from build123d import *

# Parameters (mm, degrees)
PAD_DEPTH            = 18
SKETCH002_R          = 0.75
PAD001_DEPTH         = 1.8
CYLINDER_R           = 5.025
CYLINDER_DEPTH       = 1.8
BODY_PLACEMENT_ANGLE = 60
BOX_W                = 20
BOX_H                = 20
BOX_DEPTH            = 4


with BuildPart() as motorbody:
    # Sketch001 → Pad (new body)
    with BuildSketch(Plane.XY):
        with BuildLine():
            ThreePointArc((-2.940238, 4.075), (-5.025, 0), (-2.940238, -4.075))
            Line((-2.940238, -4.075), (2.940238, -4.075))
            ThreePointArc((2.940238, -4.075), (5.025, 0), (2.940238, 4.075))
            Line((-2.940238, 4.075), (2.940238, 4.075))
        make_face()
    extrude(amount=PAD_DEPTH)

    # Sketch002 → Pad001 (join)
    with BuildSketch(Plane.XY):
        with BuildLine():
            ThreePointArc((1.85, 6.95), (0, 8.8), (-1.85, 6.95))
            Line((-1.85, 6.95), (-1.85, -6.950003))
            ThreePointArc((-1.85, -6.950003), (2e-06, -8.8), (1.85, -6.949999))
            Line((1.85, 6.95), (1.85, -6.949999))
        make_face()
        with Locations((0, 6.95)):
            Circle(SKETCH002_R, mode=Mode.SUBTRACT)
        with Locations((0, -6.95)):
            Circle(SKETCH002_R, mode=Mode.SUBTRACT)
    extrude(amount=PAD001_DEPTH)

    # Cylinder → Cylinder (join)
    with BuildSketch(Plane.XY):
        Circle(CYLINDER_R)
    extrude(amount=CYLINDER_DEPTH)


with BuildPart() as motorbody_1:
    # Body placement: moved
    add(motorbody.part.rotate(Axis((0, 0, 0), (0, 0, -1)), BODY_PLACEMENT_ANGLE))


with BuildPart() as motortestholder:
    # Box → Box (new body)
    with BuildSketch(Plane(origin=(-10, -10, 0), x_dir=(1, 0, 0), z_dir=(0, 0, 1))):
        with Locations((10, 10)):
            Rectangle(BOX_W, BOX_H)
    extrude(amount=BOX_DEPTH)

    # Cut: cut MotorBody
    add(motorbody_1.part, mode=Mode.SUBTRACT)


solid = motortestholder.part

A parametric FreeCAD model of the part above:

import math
import FreeCAD as App
import Part
import Sketcher
from FreeCAD import Vector
Q = App.Units.Quantity


def add_polygon(sketch, points):
    """Adds a closed chain of lines whose ends are joined by coincident constraints."""
    first, n = sketch.GeometryCount, len(points)
    for a, b in zip(points, points[1:] + points[:1]):
        sketch.addGeometry(Part.LineSegment(App.Vector(*a, 0), App.Vector(*b, 0)), False)
    for i in range(n):
        sketch.addConstraint(Sketcher.Constraint("Coincident", first + i, 2, first + (i + 1) % n, 1))

doc = App.newDocument("Part")
body = doc.addObject("PartDesign::Body", "Body")

# Sketch on XY plane
sketch1 = body.newObject("Sketcher::SketchObject", "Sketch")
sketch1.AttachmentSupport = (doc.getObject("XY_Plane"), [""])
sketch1.MapMode = "FlatFace"
sketch1.addGeometry(Part.ArcOfCircle(Part.Circle(Vector(0, 0, 0), Vector(0, 0, 1), 5.025), math.radians(125.811608), math.radians(234.188392)), False)
sketch1.addGeometry(Part.LineSegment(Vector(-2.940238, -4.075, 0), Vector(2.940238, -4.075, 0)), False)
sketch1.addGeometry(Part.ArcOfCircle(Part.Circle(Vector(0, 0, 0), Vector(0, 0, 1), 5.025), math.radians(-54.188392), math.radians(54.188392)), False)
sketch1.addGeometry(Part.LineSegment(Vector(2.940238, 4.075, 0), Vector(-2.940238, 4.075, 0)), False)
sketch1.addConstraint(Sketcher.Constraint("Coincident", 0, 2, 1, 1))
sketch1.addConstraint(Sketcher.Constraint("Coincident", 1, 2, 2, 1))
sketch1.addConstraint(Sketcher.Constraint("Coincident", 2, 2, 3, 1))
sketch1.addConstraint(Sketcher.Constraint("Coincident", 3, 2, 0, 1))
sketch1.addConstraint(Sketcher.Constraint("Horizontal", 1))
sketch1.addConstraint(Sketcher.Constraint("Horizontal", 3))
sketch1.addConstraint(Sketcher.Constraint("Coincident", 0, 3, -1, 1))
sketch1.addConstraint(Sketcher.Constraint("Coincident", 2, 3, -1, 1))
sketch1.addConstraint(Sketcher.Constraint("Equal", 0, 2))
sketch1.addConstraint(Sketcher.Constraint("Vertical", 1, 2, 2, 2))
sketch1.addConstraint(Sketcher.Constraint("Radius", 0, Q("5.025 mm")))
sketch1.addConstraint(Sketcher.Constraint("DistanceY", 1, 2, 2, 2, Q("8.15 mm")))
pad1 = body.newObject("PartDesign::Pad", "Pad")
pad1.Profile = sketch1
pad1.Length = 18

# Sketch on XY plane
sketch2 = body.newObject("Sketcher::SketchObject", "Sketch001")
sketch2.AttachmentSupport = (doc.getObject("XY_Plane"), [""])
sketch2.MapMode = "FlatFace"
sketch2.addGeometry(Part.ArcOfCircle(Part.Circle(Vector(0, 6.95, 0), Vector(0, 0, 1), 1.85), math.radians(0), math.radians(180)), False)
sketch2.addGeometry(Part.LineSegment(Vector(-1.85, 6.95, 0), Vector(-1.85, -6.950003, 0)), False)
sketch2.addGeometry(Part.ArcOfCircle(Part.Circle(Vector(0, -6.95, 0), Vector(0, 0, 1), 1.85), math.radians(-179.999907), math.radians(0.000031)), False)
sketch2.addGeometry(Part.LineSegment(Vector(1.85, -6.949999, 0), Vector(1.85, 6.95, 0)), False)
sketch2.addGeometry(Part.Circle(Vector(0, -6.95, 0), Vector(0, 0, 1), 0.75), False)
sketch2.addGeometry(Part.Circle(Vector(0, 6.95, 0), Vector(0, 0, 1), 0.75), False)
sketch2.addConstraint(Sketcher.Constraint("Tangent", 0, 2, 1, 1))
sketch2.addConstraint(Sketcher.Constraint("Tangent", 1, 2, 2, 1))
sketch2.addConstraint(Sketcher.Constraint("Tangent", 2, 2, 3, 1))
sketch2.addConstraint(Sketcher.Constraint("Tangent", 3, 2, 0, 1))
sketch2.addConstraint(Sketcher.Constraint("Vertical", 1))
sketch2.addConstraint(Sketcher.Constraint("Vertical", 3))
sketch2.addConstraint(Sketcher.Constraint("Coincident", 4, 3, 2, 3))
sketch2.addConstraint(Sketcher.Constraint("Coincident", 5, 3, 0, 3))
sketch2.addConstraint(Sketcher.Constraint("Equal", 4, 5))
sketch2.addConstraint(Sketcher.Constraint("Symmetric", 0, 3, 2, 3, -1, 1))
sketch2.addConstraint(Sketcher.Constraint("Diameter", 4, Q("1.5 mm")))
sketch2.addConstraint(Sketcher.Constraint("Radius", 0, Q("1.85 mm")))
sketch2.addConstraint(Sketcher.Constraint("DistanceY", 3, 1, 3, 2, Q("13.899999 mm")))
pad2 = body.newObject("PartDesign::Pad", "Pad001")
pad2.Profile = sketch2
pad2.Length = 1.8

# Sketch on XY plane
sketch3 = body.newObject("Sketcher::SketchObject", "Sketch002")
sketch3.AttachmentSupport = (doc.getObject("XY_Plane"), [""])
sketch3.MapMode = "FlatFace"
sketch3.addGeometry(Part.Circle(Vector(0, 0, 0), Vector(0, 0, 1), 5.025), False)
sketch3.addConstraint(Sketcher.Constraint("Coincident", 0, 3, -1, 1))
sketch3.addConstraint(Sketcher.Constraint("Diameter", 0, Q("10.05 mm")))
pad3 = body.newObject("PartDesign::Pad", "Pad002")
pad3.Profile = sketch3
pad3.Length = 1.8
body2 = doc.addObject("PartDesign::Body", "Body001")
doc.recompute()

body.Placement = App.Placement(Vector(0, 0, 0), App.Rotation(Vector(0, 0, -1), 60))
boolean = body2.newObject("PartDesign::Boolean", "Boolean")
boolean.Type = "Fuse"
boolean.addObjects([body])
body3 = doc.addObject("PartDesign::Body", "Body002")

# Sketch on XY plane
sketch4 = body3.newObject("Sketcher::SketchObject", "Sketch003")
sketch4.AttachmentSupport = (doc.getObject("XY_Plane002"), [""])
sketch4.MapMode = "FlatFace"
add_polygon(sketch4, [(-10, 10), (-10, -10), (10, -10), (10, 10)])  # lines 0-3
sketch4.addConstraint(Sketcher.Constraint("Vertical", 0))
sketch4.addConstraint(Sketcher.Constraint("Horizontal", 1))
sketch4.addConstraint(Sketcher.Constraint("Vertical", 2))
sketch4.addConstraint(Sketcher.Constraint("Horizontal", 3))
sketch4.addConstraint(Sketcher.Constraint("Symmetric", 0, 2, 2, 2, -1, 1))
sketch4.addConstraint(Sketcher.Constraint("Equal", 3, 0))
sketch4.addConstraint(Sketcher.Constraint("DistanceX", 1, 1, 1, 2, Q("20 mm")))
pad4 = body3.newObject("PartDesign::Pad", "Pad003")
pad4.Profile = sketch4
pad4.Length = 4
doc.recompute()

boolean2 = body3.newObject("PartDesign::Boolean", "Boolean001")
boolean2.Type = "Cut"
boolean2.addObjects([body2])

doc.recompute()
